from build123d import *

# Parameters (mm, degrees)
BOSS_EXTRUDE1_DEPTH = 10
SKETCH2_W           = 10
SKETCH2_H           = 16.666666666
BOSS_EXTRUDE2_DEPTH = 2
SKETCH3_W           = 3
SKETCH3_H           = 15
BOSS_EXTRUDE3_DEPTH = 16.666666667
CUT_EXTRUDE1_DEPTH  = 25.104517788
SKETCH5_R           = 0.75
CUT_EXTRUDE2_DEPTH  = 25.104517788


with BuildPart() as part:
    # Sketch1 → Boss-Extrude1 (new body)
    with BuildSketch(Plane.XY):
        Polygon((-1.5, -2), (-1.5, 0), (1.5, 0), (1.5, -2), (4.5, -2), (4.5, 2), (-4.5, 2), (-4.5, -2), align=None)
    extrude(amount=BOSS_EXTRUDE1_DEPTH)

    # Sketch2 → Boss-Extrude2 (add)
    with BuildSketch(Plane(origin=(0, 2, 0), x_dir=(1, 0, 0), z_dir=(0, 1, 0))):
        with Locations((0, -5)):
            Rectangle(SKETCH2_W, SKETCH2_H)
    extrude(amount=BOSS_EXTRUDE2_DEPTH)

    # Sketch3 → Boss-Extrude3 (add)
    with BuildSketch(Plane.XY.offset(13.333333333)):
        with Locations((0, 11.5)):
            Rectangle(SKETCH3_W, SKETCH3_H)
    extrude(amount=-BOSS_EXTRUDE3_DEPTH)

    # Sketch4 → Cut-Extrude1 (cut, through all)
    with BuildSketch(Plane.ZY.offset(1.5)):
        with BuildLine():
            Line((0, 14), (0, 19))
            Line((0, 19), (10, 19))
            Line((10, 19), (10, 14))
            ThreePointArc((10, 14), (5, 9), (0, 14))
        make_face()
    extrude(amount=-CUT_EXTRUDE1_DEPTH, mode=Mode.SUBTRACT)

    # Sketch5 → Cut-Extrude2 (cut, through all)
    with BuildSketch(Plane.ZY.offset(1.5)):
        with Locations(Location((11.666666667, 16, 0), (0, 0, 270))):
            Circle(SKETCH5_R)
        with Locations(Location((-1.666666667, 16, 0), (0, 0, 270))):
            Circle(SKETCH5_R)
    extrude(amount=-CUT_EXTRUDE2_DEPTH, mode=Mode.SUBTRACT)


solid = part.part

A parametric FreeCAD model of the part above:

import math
import FreeCAD as App
import Part
import Sketcher
from FreeCAD import Vector

doc = App.newDocument("Part")
params = doc.addObject("Spreadsheet::Sheet", "Params")
for row, (alias, value) in enumerate([
    ("sketch1_width", "3 mm"),
    ("sketch1_height", "2 mm"),
    ("pad1_length", "10 mm"),
    ("sketch2_width", "10 mm"),
    ("pad2_length", "2 mm"),
    ("sketch3_width", "3 mm"),
    ("sketch3_height", "15 mm"),
    ("pad3_length", "16.666667 mm"),
    ("sketch4_radius", "5 mm"),
    ("sketch4_width", "5 mm"),
    ("sketch5_diameter", "1.5 mm"),
], start=1):
    params.set(f"A{row}", alias)
    params.set(f"B{row}", "=" + value)
    params.setAlias(f"B{row}", alias)

body = doc.addObject("PartDesign::Body", "Body")

# Sketch on XY plane
sketch1 = doc.addObject("Sketcher::SketchObject", "Sketch")
body.addObject(sketch1)
sketch1.AttachmentSupport = (doc.XY_Plane, [""])
sketch1.MapMode = "FlatFace"
sketch1.addGeometry([
    Part.LineSegment(Vector(-1.5, -2, 0), Vector(-1.5, 0, 0)),  # 0
    Part.LineSegment(Vector(-1.5, 0, 0), Vector(1.5, 0, 0)),  # 1
    Part.LineSegment(Vector(1.5, 0, 0), Vector(1.5, -2, 0)),  # 2
    Part.LineSegment(Vector(1.5, -2, 0), Vector(4.5, -2, 0)),  # 3
    Part.LineSegment(Vector(4.5, -2, 0), Vector(4.5, 2, 0)),  # 4
    Part.LineSegment(Vector(4.5, 2, 0), Vector(-4.5, 2, 0)),  # 5
    Part.LineSegment(Vector(-4.5, 2, 0), Vector(-4.5, -2, 0)),  # 6
    Part.LineSegment(Vector(-4.5, -2, 0), Vector(-1.5, -2, 0)),  # 7
], False)
sketch1.addConstraint([
    Sketcher.Constraint("Coincident", 0, 2, 1, 1),
    Sketcher.Constraint("Coincident", 1, 2, 2, 1),
    Sketcher.Constraint("Coincident", 2, 2, 3, 1),
    Sketcher.Constraint("Coincident", 3, 2, 4, 1),
    Sketcher.Constraint("Coincident", 4, 2, 5, 1),
    Sketcher.Constraint("Coincident", 5, 2, 6, 1),
    Sketcher.Constraint("Coincident", 6, 2, 7, 1),
    Sketcher.Constraint("Coincident", 7, 2, 0, 1),
    Sketcher.Constraint("Vertical", 0),
    Sketcher.Constraint("Horizontal", 1),
    Sketcher.Constraint("Vertical", 2),
    Sketcher.Constraint("Horizontal", 3),
    Sketcher.Constraint("Vertical", 4),
    Sketcher.Constraint("Horizontal", 5),
    Sketcher.Constraint("Vertical", 6),
    Sketcher.Constraint("Horizontal", 7),
    Sketcher.Constraint("Symmetric", 0, 2, 1, 2, -1, 1),
    Sketcher.Constraint("Symmetric", 3, 2, 5, 2, -1, 1),
    Sketcher.Constraint("Horizontal", 3, 2, 6, 2),
    Sketcher.Constraint("Equal", 1, 3),
    Sketcher.Constraint("DistanceX", 1, 1, 1, 2, 3.0),
    Sketcher.Constraint("DistanceY", 0, 1, 0, 2, 2.0),
])
sketch1.setExpression("Constraints[20]", "Params.sketch1_width")
sketch1.setExpression("Constraints[21]", "Params.sketch1_height")
pad1 = doc.addObject("PartDesign::Pad", "Pad")
body.addObject(pad1)
pad1.Profile = sketch1
pad1.setExpression("Length", "Params.pad1_length")

# Sketch on XZ plane
sketch2 = doc.addObject("Sketcher::SketchObject", "Sketch001")
body.addObject(sketch2)
sketch2.AttachmentSupport = (doc.XZ_Plane, [""])
sketch2.MapMode = "FlatFace"
sketch2.AttachmentOffset = App.Placement(Vector(0, 0, -2), App.Rotation())
sketch2.addGeometry([
    Part.LineSegment(Vector(-5, -3, 0), Vector(-5, 13, 0)),
    Part.LineSegment(Vector(-5, 13, 0), Vector(5, 13, 0)),
    Part.LineSegment(Vector(5, 13, 0), Vector(5, -3, 0)),
    Part.LineSegment(Vector(5, -3, 0), Vector(-5, -3, 0)),
], False)
sketch2.addConstraint([
    Sketcher.Constraint("Coincident", 0, 2, 1, 1),
    Sketcher.Constraint("Coincident", 1, 2, 2, 1),
    Sketcher.Constraint("Coincident", 2, 2, 3, 1),
    Sketcher.Constraint("Coincident", 3, 2, 0, 1),
    Sketcher.Constraint("Vertical", 0),
    Sketcher.Constraint("Horizontal", 1),
    Sketcher.Constraint("Vertical", 2),
    Sketcher.Constraint("Horizontal", 3),
    Sketcher.Constraint("DistanceX", 1, 1, 1, 2, 10.0),
    Sketcher.Constraint("DistanceX", 0, 2, -1, 1, 5.0),
    Sketcher.Constraint("DistanceY", 0, 1, 0, 2, 16.666667),
    Sketcher.Constraint("DistanceY", -1, 1, 0, 2, 13.333333),
])
sketch2.setExpression("Constraints[8]", "Params.sketch2_width")
pad2 = doc.addObject("PartDesign::Pad", "Pad001")
body.addObject(pad2)
pad2.Profile = sketch2
pad2.setExpression("Length", "Params.pad2_length")
pad2.Reversed = True

# Sketch on XY plane
sketch3 = doc.addObject("Sketcher::SketchObject", "Sketch002")
body.addObject(sketch3)
sketch3.AttachmentSupport = (doc.XY_Plane, [""])
sketch3.MapMode = "FlatFace"
sketch3.AttachmentOffset = App.Placement(Vector(0, 0, 13.333333), App.Rotation())
sketch3.addGeometry([
    Part.LineSegment(Vector(-1.5, 19, 0), Vector(-1.5, 4, 0)),
    Part.LineSegment(Vector(-1.5, 4, 0), Vector(1.5, 4, 0)),
    Part.LineSegment(Vector(1.5, 4, 0), Vector(1.5, 19, 0)),
    Part.LineSegment(Vector(1.5, 19, 0), Vector(-1.5, 19, 0)),
], False)
sketch3.addConstraint([
    Sketcher.Constraint("Coincident", 0, 2, 1, 1),
    Sketcher.Constraint("Coincident", 1, 2, 2, 1),
    Sketcher.Constraint("Coincident", 2, 2, 3, 1),
    Sketcher.Constraint("Coincident", 3, 2, 0, 1),
    Sketcher.Constraint("Vertical", 0),
    Sketcher.Constraint("Horizontal", 1),
    Sketcher.Constraint("Vertical", 2),
    Sketcher.Constraint("Horizontal", 3),
    Sketcher.Constraint("DistanceX", 1, 1, 1, 2, 3.0),
    Sketcher.Constraint("DistanceY", 0, 2, 0, 1, 15.0),
    Sketcher.Constraint("DistanceY", -1, 1, 0, 2, 4.0),
    Sketcher.Constraint("DistanceX", 0, 2, -1, 1, 1.5),
])
sketch3.setExpression("Constraints[8]", "Params.sketch3_width")
sketch3.setExpression("Constraints[9]", "Params.sketch3_height")
pad3 = doc.addObject("PartDesign::Pad", "Pad002")
body.addObject(pad3)
pad3.Profile = sketch3
pad3.setExpression("Length", "Params.pad3_length")
pad3.Reversed = True

# Sketch on YZ plane
sketch4 = doc.addObject("Sketcher::SketchObject", "Sketch003")
body.addObject(sketch4)
sketch4.AttachmentSupport = (doc.YZ_Plane, [""])
sketch4.MapMode = "FlatFace"
sketch4.AttachmentOffset = App.Placement(Vector(0, 0, -1.5), App.Rotation())
sketch4.addGeometry([
    Part.LineSegment(Vector(19, 0, 0), Vector(14, 0, 0)),
    Part.ArcOfCircle(Part.Circle(Vector(14, 5, 0), Vector(0, 0, 1), 5), math.radians(90), math.radians(270)),
    Part.LineSegment(Vector(14, 10, 0), Vector(19, 10, 0)),
    Part.LineSegment(Vector(19, 10, 0), Vector(19, 0, 0)),
], False)
sketch4.addConstraint([
    Sketcher.Constraint("Tangent", 0, 2, 1, 2),
    Sketcher.Constraint("Tangent", 1, 1, 2, 1),
    Sketcher.Constraint("Coincident", 2, 2, 3, 1),
    Sketcher.Constraint("Coincident", 3, 2, 0, 1),
    Sketcher.Constraint("Horizontal", 0),
    Sketcher.Constraint("Horizontal", 2),
    Sketcher.Constraint("Vertical", 3),
    Sketcher.Constraint("PointOnObject", 0, 2, -1),
    Sketcher.Constraint("Radius", 1, 5.0),
    Sketcher.Constraint("DistanceX", 0, 2, 0, 1, 5.0),
    Sketcher.Constraint("DistanceX", -1, 1, 1, 3, 14.0),
])
sketch4.setExpression("Constraints[8]", "Params.sketch4_radius")
sketch4.setExpression("Constraints[9]", "Params.sketch4_width")
pocket1 = doc.addObject("PartDesign::Pocket", "Pocket")
body.addObject(pocket1)
pocket1.Profile = sketch4
pocket1.Type = "ThroughAll"
pocket1.Reversed = True

# Sketch on YZ plane
sketch5 = doc.addObject("Sketcher::SketchObject", "Sketch004")
body.addObject(sketch5)
sketch5.AttachmentSupport = (doc.YZ_Plane, [""])
sketch5.MapMode = "FlatFace"
sketch5.AttachmentOffset = App.Placement(Vector(0, 0, -1.5), App.Rotation())
sketch5.addGeometry([
    Part.Circle(Vector(16, 11.7, 0), Vector(0, 0, 1), 0.8),
    Part.Circle(Vector(16, -1.7, 0), Vector(0, 0, 1), 0.8),
], False)
sketch5.addConstraint([
    Sketcher.Constraint("Equal", 0, 1),
    Sketcher.Constraint("Vertical", 0, 3, 1, 3),
    Sketcher.Constraint("Diameter", 0, 1.5),
    Sketcher.Constraint("DistanceX", -1, 1, 0, 3, 16.0),
    Sketcher.Constraint("DistanceY", -1, 1, 0, 3, 11.666667),
    Sketcher.Constraint("DistanceY", 1, 3, -1, 1, 1.666667),
])
sketch5.setExpression("Constraints[2]", "Params.sketch5_diameter")
pocket2 = doc.addObject("PartDesign::Pocket", "Pocket001")
body.addObject(pocket2)
pocket2.Profile = sketch5
pocket2.Type = "ThroughAll"
pocket2.Reversed = True

doc.recompute()
